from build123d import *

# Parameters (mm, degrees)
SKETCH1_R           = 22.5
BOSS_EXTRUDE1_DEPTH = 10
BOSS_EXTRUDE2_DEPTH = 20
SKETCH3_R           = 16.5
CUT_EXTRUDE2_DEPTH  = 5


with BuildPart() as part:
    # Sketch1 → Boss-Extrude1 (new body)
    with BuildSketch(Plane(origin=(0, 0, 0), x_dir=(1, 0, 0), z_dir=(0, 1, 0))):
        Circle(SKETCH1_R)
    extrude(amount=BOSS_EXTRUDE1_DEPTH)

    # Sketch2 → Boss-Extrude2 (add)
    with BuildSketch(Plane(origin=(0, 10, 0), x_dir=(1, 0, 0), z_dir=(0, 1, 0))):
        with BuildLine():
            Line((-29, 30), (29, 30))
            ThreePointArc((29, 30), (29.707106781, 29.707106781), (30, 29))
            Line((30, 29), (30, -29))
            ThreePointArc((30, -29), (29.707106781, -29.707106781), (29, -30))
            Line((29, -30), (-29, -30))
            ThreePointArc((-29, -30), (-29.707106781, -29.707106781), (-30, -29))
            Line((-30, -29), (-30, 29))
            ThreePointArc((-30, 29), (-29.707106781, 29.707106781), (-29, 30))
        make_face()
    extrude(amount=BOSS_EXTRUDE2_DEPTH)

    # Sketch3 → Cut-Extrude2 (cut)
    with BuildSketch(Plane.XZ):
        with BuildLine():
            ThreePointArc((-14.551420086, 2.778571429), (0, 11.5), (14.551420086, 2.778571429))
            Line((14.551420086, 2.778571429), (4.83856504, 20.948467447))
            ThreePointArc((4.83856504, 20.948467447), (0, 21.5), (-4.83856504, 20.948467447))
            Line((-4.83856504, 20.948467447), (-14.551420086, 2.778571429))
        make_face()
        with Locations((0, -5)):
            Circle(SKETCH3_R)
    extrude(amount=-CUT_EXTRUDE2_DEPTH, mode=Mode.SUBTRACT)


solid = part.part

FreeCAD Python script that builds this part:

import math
import FreeCAD as App
import Part
import Sketcher

V = App.Vector

doc = App.newDocument("Part")
body = doc.addObject("PartDesign::Body", "Body")

sketch1 = body.newObject("Sketcher::SketchObject", "Sketch")
sketch1.AttachmentSupport = (doc.getObject("XZ_Plane"), [""])
sketch1.MapMode = "FlatFace"
sketch1.addGeometry(Part.Circle(V(0, 0, 0), V(0, 0, 1), 22.5), False)
sketch1.addConstraint([
    Sketcher.Constraint("Coincident", 0, 3, -1, 1),
    Sketcher.Constraint("Diameter", 0, 45.0),
])
pad1 = body.newObject("PartDesign::Pad", "Pad")
pad1.Profile = sketch1
pad1.Length = 10
pad1.Reversed = True

sketch2 = body.newObject("Sketcher::SketchObject", "Sketch001")
sketch2.AttachmentSupport = (doc.getObject("XZ_Plane"), [""])
sketch2.MapMode = "FlatFace"
sketch2.AttachmentOffset = App.Placement(V(0, 0, -10), App.Rotation())
sketch2.addGeometry([
    Part.LineSegment(V(29, -30, 0), V(-29, -30, 0)),
    Part.ArcOfCircle(Part.Circle(V(-29, -29, 0), V(0, 0, 1), 1), math.radians(-180), math.radians(-90)),
    Part.LineSegment(V(-30, -29, 0), V(-30, 29, 0)),
    Part.ArcOfCircle(Part.Circle(V(-29, 29, 0), V(0, 0, 1), 1), math.radians(90), math.radians(180)),
    Part.LineSegment(V(-29, 30, 0), V(29, 30, 0)),
    Part.ArcOfCircle(Part.Circle(V(29, 29, 0), V(0, 0, 1), 1), math.radians(0), math.radians(90)),
    Part.LineSegment(V(30, 29, 0), V(30, -29, 0)),
    Part.ArcOfCircle(Part.Circle(V(29, -29, 0), V(0, 0, 1), 1), math.radians(-90), math.radians(0)),
], False)
sketch2.addConstraint([
    Sketcher.Constraint("Tangent", 0, 2, 1, 2),
    Sketcher.Constraint("Tangent", 1, 1, 2, 1),
    Sketcher.Constraint("Tangent", 2, 2, 3, 2),
    Sketcher.Constraint("Tangent", 3, 1, 4, 1),
    Sketcher.Constraint("Tangent", 4, 2, 5, 2),
    Sketcher.Constraint("Tangent", 5, 1, 6, 1),
    Sketcher.Constraint("Tangent", 6, 2, 7, 2),
    Sketcher.Constraint("Tangent", 7, 1, 0, 1),
    Sketcher.Constraint("Horizontal", 0),
    Sketcher.Constraint("Vertical", 2),
    Sketcher.Constraint("Horizontal", 4),
    Sketcher.Constraint("Vertical", 6),
    Sketcher.Constraint("Equal", 1, 3),
    Sketcher.Constraint("Equal", 3, 5),
    Sketcher.Constraint("Equal", 5, 7),
    Sketcher.Constraint("Symmetric", 1, 3, 5, 3, -1, 1),
    Sketcher.Constraint("Equal", 4, 2),
    Sketcher.Constraint("Radius", 1, 1.0),
    Sketcher.Constraint("DistanceX", 0, 2, 0, 1, 58.0),
])
pad2 = body.newObject("PartDesign::Pad", "Pad001")
pad2.Profile = sketch2
pad2.Length = 20
pad2.Reversed = True

sketch3 = body.newObject("Sketcher::SketchObject", "Sketch002")
sketch3.AttachmentSupport = (doc.getObject("XZ_Plane"), [""])
sketch3.MapMode = "FlatFace"
sketch3.addGeometry([
    Part.LineSegment(V(14.55142, 2.778571, 0), V(4.838565, 20.948467, 0)),
    Part.ArcOfCircle(Part.Circle(V(0, 0, 0), V(0, 0, 1), 21.5), math.radians(76.994209), math.radians(103.005791)),
    Part.LineSegment(V(-4.838565, 20.948467, 0), V(-14.55142, 2.778571, 0)),
    Part.ArcOfCircle(Part.Circle(V(0, -5, 0), V(0, 0, 1), 16.5), math.radians(151.872932), math.radians(388.127068)),
], False)
sketch3.addConstraint([
    Sketcher.Constraint("Coincident", 0, 2, 1, 1),
    Sketcher.Constraint("Coincident", 1, 2, 2, 1),
    Sketcher.Constraint("Tangent", 2, 2, 3, 1),
    Sketcher.Constraint("Tangent", 3, 2, 0, 1),
    Sketcher.Constraint("Coincident", 1, 3, -1, 1),
    Sketcher.Constraint("Symmetric", 2, 2, 3, 2, -2),
    Sketcher.Constraint("Radius", 1, 21.5),
    Sketcher.Constraint("Radius", 3, 16.5),
    Sketcher.Constraint("DistanceY", 3, 3, -1, 1, 5.0),
    Sketcher.Constraint("DistanceX", 2, 2, -1, 1, 14.55142),
])
pocket1 = body.newObject("PartDesign::Pocket", "Pocket")
pocket1.Profile = sketch3
pocket1.Length = 5

doc.recompute()
